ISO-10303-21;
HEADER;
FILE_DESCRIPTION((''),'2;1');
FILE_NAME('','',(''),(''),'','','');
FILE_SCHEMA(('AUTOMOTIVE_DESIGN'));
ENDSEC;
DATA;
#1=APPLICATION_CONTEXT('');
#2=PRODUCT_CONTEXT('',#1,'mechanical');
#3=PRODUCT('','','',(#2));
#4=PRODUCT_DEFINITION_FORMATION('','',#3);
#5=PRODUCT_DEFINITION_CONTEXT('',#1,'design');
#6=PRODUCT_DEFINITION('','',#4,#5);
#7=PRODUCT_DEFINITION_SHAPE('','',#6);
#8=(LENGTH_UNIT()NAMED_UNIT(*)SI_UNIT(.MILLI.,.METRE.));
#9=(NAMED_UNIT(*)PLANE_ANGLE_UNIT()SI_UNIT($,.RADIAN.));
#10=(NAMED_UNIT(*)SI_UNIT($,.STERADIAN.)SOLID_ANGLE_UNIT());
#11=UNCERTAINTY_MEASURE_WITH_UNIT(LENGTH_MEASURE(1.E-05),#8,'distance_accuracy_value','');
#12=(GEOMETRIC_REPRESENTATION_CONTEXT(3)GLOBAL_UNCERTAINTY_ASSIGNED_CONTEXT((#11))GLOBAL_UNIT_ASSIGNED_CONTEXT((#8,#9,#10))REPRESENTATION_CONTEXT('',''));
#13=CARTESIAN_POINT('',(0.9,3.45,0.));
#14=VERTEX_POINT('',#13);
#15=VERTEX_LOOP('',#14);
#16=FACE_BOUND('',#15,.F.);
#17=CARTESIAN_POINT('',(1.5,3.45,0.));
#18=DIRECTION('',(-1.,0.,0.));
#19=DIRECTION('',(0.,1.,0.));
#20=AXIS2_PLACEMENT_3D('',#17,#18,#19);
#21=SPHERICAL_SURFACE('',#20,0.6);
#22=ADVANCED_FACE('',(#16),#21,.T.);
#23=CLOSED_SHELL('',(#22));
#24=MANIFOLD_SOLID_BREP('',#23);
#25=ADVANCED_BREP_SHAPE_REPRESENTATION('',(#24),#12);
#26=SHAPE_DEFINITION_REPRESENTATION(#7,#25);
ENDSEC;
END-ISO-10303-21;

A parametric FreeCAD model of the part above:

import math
import FreeCAD as App
import Part
import Sketcher
from FreeCAD import Vector
Q = App.Units.Quantity

doc = App.newDocument("Part")
body = doc.addObject("PartDesign::Body", "Body")

# Sketch on XY plane
sketch1 = body.newObject("Sketcher::SketchObject", "Sketch")
sketch1.AttachmentSupport = (doc.getObject("XY_Plane"), [""])
sketch1.MapMode = "FlatFace"
sketch1.addGeometry([
    Part.LineSegment(Vector(0.9, 3.5, 0), Vector(2.1, 3.5, 0)),
    Part.ArcOfCircle(Part.Circle(Vector(1.5, 3.5, 0), Vector(0, 0, 1), 0.6), math.radians(0), math.radians(180)),
], False)
sketch1.addGeometry(Part.LineSegment(Vector(0.9, 3.5, 0), Vector(2.1, 3.5, 0)), True)  # axis
sketch1.addConstraint([
    Sketcher.Constraint("Coincident", 0, 1, 1, 2),
    Sketcher.Constraint("Coincident", 1, 1, 0, 2),
    Sketcher.Constraint("Horizontal", 0),
    Sketcher.Constraint("Horizontal", 2),
    Sketcher.Constraint("Coincident", 2, 1, 0, 1),
    Sketcher.Constraint("Horizontal", 1, 3, 0, 1),
    Sketcher.Constraint("Equal", 0, 2),
    Sketcher.Constraint("Radius", 1, Q("0.6 mm")),
    Sketcher.Constraint("DistanceX", -1, 1, 1, 3, Q("1.5 mm")),
    Sketcher.Constraint("DistanceY", -1, 1, 1, 3, Q("3.45 mm")),
])
revolution = body.newObject("PartDesign::Revolution", "Revolution")
revolution.Profile = sketch1
revolution.ReferenceAxis = (sketch1, ["Axis0"])
revolution.Angle = 360

doc.recompute()
